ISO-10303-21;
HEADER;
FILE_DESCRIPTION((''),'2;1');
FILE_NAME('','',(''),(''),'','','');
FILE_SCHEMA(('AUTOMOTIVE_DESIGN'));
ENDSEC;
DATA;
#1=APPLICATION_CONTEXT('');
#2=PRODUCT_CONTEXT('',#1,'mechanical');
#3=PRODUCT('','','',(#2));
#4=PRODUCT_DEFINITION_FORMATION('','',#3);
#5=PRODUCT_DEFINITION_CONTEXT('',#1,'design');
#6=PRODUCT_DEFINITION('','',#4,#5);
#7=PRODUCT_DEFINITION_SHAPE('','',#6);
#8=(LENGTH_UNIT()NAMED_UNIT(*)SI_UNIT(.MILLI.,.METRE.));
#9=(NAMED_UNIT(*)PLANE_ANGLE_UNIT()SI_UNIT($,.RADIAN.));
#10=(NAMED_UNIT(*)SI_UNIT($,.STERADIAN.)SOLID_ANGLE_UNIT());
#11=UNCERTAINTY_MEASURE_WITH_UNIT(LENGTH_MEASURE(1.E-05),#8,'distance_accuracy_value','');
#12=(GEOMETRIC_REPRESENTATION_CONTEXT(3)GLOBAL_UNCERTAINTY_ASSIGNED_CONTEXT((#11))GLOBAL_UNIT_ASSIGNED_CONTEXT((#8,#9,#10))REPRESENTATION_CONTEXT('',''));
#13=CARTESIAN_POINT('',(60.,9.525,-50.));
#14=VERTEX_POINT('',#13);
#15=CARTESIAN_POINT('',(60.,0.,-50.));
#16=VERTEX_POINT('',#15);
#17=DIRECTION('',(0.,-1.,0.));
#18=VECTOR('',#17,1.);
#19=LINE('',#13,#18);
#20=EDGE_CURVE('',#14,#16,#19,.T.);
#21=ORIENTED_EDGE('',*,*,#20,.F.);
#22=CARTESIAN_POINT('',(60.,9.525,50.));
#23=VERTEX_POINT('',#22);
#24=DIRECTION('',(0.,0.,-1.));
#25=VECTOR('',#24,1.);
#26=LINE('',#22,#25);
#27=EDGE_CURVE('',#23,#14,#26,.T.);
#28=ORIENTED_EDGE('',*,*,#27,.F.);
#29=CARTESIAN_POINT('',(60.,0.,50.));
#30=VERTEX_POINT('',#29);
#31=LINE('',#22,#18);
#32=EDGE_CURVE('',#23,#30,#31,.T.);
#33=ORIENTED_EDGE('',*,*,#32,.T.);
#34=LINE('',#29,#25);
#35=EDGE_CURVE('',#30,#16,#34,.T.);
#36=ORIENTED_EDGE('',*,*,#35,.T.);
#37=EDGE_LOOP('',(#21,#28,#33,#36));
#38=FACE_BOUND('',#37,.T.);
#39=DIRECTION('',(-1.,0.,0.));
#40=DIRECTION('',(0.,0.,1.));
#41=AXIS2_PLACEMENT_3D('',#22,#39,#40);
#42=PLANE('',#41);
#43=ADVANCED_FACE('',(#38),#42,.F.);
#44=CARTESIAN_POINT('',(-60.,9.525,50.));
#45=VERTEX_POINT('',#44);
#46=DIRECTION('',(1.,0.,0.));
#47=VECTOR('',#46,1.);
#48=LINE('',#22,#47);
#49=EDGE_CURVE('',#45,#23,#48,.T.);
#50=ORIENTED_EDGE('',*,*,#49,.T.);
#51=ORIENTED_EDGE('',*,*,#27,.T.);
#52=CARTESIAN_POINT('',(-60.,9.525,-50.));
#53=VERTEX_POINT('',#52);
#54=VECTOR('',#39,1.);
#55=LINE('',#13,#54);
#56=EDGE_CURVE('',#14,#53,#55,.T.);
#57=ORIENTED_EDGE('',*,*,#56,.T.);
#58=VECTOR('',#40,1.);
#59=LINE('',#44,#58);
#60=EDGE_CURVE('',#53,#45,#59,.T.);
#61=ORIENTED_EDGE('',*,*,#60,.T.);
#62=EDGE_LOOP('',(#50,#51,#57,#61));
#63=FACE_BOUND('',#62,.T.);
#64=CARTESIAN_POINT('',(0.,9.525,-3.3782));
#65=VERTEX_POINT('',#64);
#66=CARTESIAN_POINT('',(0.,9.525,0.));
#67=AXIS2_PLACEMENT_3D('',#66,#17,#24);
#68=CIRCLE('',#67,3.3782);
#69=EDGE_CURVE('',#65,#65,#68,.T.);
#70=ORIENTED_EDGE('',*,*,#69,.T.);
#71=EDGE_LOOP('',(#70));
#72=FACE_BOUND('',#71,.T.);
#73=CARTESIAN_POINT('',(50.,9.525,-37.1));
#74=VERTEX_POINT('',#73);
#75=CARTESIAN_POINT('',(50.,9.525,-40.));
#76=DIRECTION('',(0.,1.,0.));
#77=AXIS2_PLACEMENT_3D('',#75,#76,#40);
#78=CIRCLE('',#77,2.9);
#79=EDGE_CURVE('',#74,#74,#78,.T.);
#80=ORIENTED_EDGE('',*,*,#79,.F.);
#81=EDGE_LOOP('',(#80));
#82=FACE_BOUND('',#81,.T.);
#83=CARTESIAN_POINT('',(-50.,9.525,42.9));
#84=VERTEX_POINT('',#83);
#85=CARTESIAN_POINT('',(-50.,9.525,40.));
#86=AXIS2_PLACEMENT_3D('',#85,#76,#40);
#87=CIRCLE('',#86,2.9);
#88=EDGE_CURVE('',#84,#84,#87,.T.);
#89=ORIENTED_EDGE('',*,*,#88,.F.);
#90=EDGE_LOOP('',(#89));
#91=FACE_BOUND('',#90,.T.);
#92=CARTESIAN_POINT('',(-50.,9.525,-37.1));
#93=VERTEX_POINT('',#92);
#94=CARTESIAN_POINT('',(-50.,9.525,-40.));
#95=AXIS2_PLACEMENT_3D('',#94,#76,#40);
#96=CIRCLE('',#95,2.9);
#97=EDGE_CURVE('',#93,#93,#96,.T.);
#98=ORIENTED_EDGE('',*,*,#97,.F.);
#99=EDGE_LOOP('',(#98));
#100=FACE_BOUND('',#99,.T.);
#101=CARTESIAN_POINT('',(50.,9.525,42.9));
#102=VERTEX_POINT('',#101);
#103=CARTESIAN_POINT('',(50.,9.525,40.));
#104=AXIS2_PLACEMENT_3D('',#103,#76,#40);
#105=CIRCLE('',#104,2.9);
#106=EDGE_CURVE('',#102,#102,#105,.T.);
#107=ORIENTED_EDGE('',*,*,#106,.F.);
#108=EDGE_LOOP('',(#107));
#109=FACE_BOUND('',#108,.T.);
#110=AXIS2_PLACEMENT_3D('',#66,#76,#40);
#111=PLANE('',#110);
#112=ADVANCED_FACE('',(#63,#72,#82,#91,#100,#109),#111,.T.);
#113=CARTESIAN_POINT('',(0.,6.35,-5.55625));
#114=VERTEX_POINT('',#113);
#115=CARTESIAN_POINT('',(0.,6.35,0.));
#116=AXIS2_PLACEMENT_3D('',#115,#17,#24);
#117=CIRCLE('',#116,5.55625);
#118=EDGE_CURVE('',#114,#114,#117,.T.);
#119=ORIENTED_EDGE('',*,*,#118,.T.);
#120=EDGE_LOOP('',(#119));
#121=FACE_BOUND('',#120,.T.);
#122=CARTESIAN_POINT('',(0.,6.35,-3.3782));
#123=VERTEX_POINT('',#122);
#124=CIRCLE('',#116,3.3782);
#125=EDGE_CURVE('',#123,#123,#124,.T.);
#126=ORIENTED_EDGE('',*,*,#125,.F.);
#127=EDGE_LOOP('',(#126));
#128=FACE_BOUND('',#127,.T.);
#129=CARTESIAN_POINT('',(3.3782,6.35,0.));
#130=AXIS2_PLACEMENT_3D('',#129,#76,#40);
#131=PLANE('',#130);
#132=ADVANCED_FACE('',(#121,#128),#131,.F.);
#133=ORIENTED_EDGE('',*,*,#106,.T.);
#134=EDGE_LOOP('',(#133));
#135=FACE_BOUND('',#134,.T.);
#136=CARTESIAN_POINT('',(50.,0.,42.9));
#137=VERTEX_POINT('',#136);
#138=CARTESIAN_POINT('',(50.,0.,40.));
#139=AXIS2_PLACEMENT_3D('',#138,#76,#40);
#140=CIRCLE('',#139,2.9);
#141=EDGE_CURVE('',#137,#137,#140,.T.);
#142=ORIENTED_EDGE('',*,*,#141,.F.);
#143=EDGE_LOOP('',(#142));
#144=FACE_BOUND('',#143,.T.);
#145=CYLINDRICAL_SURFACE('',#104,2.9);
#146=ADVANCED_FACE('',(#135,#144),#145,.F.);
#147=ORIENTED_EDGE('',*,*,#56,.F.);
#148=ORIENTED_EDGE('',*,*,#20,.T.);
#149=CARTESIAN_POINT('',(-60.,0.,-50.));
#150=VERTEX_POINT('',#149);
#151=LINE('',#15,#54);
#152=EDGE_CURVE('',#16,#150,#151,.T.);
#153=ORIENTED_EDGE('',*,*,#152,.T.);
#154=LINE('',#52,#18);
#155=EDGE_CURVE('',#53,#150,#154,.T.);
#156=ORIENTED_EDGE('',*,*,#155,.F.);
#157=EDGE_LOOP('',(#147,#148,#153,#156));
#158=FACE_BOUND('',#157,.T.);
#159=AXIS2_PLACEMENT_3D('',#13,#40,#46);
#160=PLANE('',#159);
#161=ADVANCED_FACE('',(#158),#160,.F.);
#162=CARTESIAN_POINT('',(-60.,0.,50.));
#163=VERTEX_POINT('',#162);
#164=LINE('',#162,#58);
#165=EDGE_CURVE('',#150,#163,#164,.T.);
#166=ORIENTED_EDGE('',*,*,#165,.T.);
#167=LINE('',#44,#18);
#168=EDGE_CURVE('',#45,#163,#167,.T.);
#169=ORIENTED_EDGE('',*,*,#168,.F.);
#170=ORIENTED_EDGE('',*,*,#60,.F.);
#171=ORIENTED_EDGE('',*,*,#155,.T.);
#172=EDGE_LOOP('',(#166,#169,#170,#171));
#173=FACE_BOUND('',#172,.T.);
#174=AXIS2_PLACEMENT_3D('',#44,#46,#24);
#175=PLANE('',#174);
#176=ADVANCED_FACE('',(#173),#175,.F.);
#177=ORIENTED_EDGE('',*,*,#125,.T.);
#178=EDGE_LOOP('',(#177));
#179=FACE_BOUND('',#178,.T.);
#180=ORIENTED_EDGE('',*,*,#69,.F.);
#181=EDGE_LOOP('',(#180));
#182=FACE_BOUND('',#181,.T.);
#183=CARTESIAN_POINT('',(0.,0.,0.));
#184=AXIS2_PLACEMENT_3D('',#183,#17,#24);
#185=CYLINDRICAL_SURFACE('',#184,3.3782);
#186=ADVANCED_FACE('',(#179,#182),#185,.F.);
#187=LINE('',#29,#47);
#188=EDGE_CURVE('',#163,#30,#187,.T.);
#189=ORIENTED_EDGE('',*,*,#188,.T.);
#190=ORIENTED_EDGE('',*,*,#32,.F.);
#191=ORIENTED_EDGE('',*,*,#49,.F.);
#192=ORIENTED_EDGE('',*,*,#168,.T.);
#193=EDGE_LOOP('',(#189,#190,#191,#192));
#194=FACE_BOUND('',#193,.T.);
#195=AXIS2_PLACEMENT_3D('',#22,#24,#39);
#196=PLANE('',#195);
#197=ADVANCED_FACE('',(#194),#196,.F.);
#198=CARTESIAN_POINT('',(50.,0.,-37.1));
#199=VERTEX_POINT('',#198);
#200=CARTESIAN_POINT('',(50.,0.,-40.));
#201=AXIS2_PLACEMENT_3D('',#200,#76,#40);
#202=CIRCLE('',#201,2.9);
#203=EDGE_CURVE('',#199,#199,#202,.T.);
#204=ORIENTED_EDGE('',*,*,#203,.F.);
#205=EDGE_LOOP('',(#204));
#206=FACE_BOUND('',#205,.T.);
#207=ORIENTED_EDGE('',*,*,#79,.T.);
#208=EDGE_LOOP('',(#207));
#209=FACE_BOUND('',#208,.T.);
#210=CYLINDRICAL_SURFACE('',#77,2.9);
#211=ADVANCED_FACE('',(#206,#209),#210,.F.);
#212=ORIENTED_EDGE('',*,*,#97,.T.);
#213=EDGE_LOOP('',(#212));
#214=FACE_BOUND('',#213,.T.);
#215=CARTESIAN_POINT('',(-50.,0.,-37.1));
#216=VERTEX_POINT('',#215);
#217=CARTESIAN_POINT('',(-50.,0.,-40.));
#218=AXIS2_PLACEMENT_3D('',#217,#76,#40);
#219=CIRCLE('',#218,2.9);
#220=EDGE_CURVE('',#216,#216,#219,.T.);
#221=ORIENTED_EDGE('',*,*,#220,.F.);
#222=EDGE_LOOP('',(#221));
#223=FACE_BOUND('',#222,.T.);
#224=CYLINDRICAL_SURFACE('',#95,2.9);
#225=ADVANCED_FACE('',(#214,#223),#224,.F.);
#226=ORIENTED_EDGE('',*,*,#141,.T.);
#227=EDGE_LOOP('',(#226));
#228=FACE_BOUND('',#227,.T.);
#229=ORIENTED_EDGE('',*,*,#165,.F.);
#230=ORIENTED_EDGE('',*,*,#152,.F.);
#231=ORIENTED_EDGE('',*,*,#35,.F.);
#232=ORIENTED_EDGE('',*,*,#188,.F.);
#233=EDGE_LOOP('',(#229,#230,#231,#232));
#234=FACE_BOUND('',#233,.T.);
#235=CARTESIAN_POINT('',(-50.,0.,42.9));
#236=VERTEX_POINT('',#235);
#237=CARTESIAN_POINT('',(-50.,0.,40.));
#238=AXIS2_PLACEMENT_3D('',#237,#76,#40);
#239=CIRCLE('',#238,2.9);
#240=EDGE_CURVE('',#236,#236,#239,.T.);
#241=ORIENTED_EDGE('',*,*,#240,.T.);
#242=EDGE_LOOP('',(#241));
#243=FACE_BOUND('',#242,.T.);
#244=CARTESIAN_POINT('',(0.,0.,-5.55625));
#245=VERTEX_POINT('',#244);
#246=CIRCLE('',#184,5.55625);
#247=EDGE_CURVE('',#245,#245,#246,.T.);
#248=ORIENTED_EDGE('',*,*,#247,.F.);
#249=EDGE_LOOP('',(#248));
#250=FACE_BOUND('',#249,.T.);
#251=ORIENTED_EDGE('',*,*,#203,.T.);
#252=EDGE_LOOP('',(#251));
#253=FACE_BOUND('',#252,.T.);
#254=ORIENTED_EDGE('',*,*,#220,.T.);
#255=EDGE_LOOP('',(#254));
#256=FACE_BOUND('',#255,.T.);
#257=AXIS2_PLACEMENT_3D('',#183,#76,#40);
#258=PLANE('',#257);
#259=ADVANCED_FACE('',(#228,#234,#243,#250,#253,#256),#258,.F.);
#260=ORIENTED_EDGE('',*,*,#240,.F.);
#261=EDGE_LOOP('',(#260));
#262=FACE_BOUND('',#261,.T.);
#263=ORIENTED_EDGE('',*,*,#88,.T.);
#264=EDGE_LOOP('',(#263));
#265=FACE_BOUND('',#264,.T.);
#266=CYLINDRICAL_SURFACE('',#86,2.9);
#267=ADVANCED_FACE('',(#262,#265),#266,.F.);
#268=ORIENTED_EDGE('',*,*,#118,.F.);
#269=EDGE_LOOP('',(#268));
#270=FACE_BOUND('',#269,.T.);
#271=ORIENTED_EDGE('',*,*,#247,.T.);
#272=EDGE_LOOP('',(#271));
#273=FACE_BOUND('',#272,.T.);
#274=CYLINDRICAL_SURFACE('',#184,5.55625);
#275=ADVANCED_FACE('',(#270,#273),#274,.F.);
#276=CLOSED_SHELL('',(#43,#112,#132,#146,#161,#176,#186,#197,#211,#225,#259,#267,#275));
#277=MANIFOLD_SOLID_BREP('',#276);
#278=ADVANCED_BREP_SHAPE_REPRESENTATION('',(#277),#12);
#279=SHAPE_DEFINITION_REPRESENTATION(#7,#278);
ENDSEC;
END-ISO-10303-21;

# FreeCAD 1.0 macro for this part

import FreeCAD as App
import Part
import Sketcher

V = App.Vector


def add_polygon(sketch, points):
    """Adds a closed chain of lines whose ends are joined by coincident constraints."""
    first, n = sketch.GeometryCount, len(points)
    for a, b in zip(points, points[1:] + points[:1]):
        sketch.addGeometry(Part.LineSegment(App.Vector(*a, 0), App.Vector(*b, 0)), False)
    for i in range(n):
        sketch.addConstraint(Sketcher.Constraint("Coincident", first + i, 2, first + (i + 1) % n, 1))

doc = App.newDocument("Part")
body = doc.addObject("PartDesign::Body", "Body")

# Sketch on XZ plane
sketch1 = doc.addObject("Sketcher::SketchObject", "Sketch")
body.addObject(sketch1)
sketch1.AttachmentSupport = (doc.XZ_Plane, [""])
sketch1.MapMode = "FlatFace"
add_polygon(sketch1, [(-60, -50), (-60, 50), (60, 50), (60, -50)])  # lines 0-3
sketch1.addConstraint([
    Sketcher.Constraint("Vertical", 0),
    Sketcher.Constraint("Horizontal", 1),
    Sketcher.Constraint("Vertical", 2),
    Sketcher.Constraint("Horizontal", 3),
    Sketcher.Constraint("Symmetric", 0, 2, 2, 2, -1, 1),
    Sketcher.Constraint("DistanceX", 1, 1, 1, 2, 120.0),
    Sketcher.Constraint("DistanceY", 0, 1, 0, 2, 100.0),
])
pad1 = doc.addObject("PartDesign::Pad", "Pad")
body.addObject(pad1)
pad1.Profile = sketch1
pad1.Length = 9.525
pad1.Reversed = True

# Sketch on XZ plane
sketch2 = doc.addObject("Sketcher::SketchObject", "Sketch001")
body.addObject(sketch2)
sketch2.AttachmentSupport = (doc.XZ_Plane, [""])
sketch2.MapMode = "FlatFace"
sketch2.AttachmentOffset = App.Placement(V(0, 0, -9.525), App.Rotation())
sketch2.addGeometry([
    Part.Circle(V(-50, 40, 0), V(0, 0, 1), 2.9),
    Part.Circle(V(-50, -40, 0), V(0, 0, 1), 2.9),
    Part.Circle(V(50, -40, 0), V(0, 0, 1), 2.9),
    Part.Circle(V(50, 40, 0), V(0, 0, 1), 2.9),
], False)
sketch2.addConstraint([
    Sketcher.Constraint("Equal", 0, 1),
    Sketcher.Constraint("Equal", 1, 2),
    Sketcher.Constraint("Equal", 2, 3),
    Sketcher.Constraint("Symmetric", 0, 3, 2, 3, -1, 1),
    Sketcher.Constraint("Symmetric", 1, 3, 3, 3, -1, 1),
    Sketcher.Constraint("Symmetric", 1, 3, 2, 3, -2),
    Sketcher.Constraint("Diameter", 0, 5.8),
    Sketcher.Constraint("DistanceX", 0, 3, -1, 1, 50.0),
    Sketcher.Constraint("DistanceY", -1, 1, 0, 3, 40.0),
])
doc.recompute()
hole = doc.addObject("PartDesign::Hole", "Hole")
body.addObject(hole)
hole.Profile = sketch2
hole.ThreadType = "None"
hole.Diameter = 5.8
hole.DepthType = "ThroughAll"
hole.Reversed = True

# Sketch on XZ plane
sketch3 = doc.addObject("Sketcher::SketchObject", "Sketch002")
body.addObject(sketch3)
sketch3.AttachmentSupport = (doc.XZ_Plane, [""])
sketch3.MapMode = "FlatFace"
sketch3.addGeometry(Part.Circle(V(0, 0, 0), V(0, 0, 1), 3.4), False)
sketch3.addConstraint([
    Sketcher.Constraint("Coincident", 0, 3, -1, 1),
    Sketcher.Constraint("Diameter", 0, 6.7564),
])
doc.recompute()
hole2 = doc.addObject("PartDesign::Hole", "Hole001")
body.addObject(hole2)
hole2.Profile = sketch3
hole2.ThreadType = "None"
hole2.Diameter = 6.7564
hole2.DepthType = "ThroughAll"
hole2.HoleCutType = "Counterbore"
hole2.HoleCutDiameter = 11.1125
hole2.HoleCutDepth = 6.35

doc.recompute()
